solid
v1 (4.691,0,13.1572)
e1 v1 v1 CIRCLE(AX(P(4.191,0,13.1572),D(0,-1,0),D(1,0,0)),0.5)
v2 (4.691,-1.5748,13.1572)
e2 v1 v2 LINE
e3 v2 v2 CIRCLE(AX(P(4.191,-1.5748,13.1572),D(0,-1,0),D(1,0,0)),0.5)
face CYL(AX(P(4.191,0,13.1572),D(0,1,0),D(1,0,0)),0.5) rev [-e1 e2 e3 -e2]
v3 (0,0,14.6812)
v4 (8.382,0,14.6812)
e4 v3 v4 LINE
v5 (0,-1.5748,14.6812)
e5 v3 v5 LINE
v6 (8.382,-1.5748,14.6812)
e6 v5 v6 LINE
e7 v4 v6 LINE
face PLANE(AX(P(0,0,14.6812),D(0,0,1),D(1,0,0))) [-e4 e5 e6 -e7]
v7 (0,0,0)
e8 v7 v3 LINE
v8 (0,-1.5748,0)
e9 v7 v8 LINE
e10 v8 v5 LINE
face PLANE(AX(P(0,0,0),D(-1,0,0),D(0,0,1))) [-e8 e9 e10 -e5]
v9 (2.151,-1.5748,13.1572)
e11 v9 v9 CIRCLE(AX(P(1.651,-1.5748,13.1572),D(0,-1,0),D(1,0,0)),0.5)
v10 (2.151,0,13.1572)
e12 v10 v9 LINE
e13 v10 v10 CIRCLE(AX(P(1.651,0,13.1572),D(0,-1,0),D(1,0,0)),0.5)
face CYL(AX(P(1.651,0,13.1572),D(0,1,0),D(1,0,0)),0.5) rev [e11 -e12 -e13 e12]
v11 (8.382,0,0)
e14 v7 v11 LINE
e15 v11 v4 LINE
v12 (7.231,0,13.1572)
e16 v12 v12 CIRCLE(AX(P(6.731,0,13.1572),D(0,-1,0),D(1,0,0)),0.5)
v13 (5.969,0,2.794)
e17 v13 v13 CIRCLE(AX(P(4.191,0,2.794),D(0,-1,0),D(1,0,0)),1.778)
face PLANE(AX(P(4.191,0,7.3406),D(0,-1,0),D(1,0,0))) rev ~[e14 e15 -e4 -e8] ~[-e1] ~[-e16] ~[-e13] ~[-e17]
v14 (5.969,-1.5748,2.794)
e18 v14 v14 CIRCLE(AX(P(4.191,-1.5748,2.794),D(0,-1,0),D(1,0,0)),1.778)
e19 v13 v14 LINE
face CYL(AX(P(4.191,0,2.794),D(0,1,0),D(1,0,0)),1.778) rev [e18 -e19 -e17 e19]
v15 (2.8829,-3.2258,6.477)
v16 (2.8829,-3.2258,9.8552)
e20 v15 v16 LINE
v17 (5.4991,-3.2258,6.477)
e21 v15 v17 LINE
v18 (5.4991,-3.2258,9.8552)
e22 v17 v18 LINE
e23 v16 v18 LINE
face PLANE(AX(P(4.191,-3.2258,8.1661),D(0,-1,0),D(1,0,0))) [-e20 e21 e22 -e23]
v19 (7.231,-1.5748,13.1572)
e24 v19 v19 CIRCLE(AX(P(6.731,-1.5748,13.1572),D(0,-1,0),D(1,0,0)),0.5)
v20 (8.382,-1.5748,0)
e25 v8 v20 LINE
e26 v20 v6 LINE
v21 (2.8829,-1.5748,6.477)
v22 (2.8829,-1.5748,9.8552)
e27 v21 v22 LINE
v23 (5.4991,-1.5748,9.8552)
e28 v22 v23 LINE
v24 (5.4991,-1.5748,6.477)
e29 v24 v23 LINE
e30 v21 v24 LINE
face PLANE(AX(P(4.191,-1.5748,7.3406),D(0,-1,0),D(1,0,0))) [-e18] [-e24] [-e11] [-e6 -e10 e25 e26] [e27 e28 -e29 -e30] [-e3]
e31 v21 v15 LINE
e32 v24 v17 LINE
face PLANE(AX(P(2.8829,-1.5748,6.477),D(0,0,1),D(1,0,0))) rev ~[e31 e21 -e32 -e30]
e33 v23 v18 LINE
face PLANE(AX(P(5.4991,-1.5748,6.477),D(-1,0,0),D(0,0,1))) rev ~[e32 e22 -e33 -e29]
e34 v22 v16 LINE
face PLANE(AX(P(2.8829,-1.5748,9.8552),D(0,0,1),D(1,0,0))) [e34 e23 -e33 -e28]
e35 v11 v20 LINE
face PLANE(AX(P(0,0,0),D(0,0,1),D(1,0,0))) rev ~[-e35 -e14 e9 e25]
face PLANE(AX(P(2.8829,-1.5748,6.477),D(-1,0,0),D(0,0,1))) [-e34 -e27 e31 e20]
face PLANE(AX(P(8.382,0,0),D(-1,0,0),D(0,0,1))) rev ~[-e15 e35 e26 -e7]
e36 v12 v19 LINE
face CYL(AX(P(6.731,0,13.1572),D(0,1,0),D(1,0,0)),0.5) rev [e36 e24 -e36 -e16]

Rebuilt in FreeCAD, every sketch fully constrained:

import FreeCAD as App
import Part
import Sketcher

V = App.Vector
Q = App.Units.Quantity


def add_polygon(sketch, points):
    """Adds a closed chain of lines whose ends are joined by coincident constraints."""
    first, n = sketch.GeometryCount, len(points)
    for a, b in zip(points, points[1:] + points[:1]):
        sketch.addGeometry(Part.LineSegment(App.Vector(*a, 0), App.Vector(*b, 0)), False)
    for i in range(n):
        sketch.addConstraint(Sketcher.Constraint("Coincident", first + i, 2, first + (i + 1) % n, 1))

doc = App.newDocument("Part")
body = doc.addObject("PartDesign::Body", "Body")

# Sketch on XZ plane
sketch1 = doc.addObject("Sketcher::SketchObject", "Sketch")
body.addObject(sketch1)
sketch1.AttachmentSupport = (doc.XZ_Plane, [""])
sketch1.MapMode = "FlatFace"
add_polygon(sketch1, [(0, 14.7), (0, 0), (8.4, 0), (8.4, 14.7)])  # lines 0-3
sketch1.addGeometry(Part.Circle(V(4.2, 2.8, 0), V(0, 0, 1), 1.8), False)  # 4
sketch1.addGeometry(Part.Circle(V(1.7, 13.2, 0), V(0, 0, 1), 0.5), False)  # 5
sketch1.addGeometry(Part.Circle(V(4.2, 13.2, 0), V(0, 0, 1), 0.5), False)  # 6
sketch1.addGeometry(Part.Circle(V(6.7, 13.2, 0), V(0, 0, 1), 0.5), False)  # 7
sketch1.addConstraint(Sketcher.Constraint("Vertical", 0))
sketch1.addConstraint(Sketcher.Constraint("Horizontal", 1))
sketch1.addConstraint(Sketcher.Constraint("Vertical", 2))
sketch1.addConstraint(Sketcher.Constraint("Horizontal", 3))
sketch1.addConstraint(Sketcher.Constraint("Coincident", 0, 2, -1, 1))
sketch1.addConstraint(Sketcher.Constraint("Equal", 5, 6))
sketch1.addConstraint(Sketcher.Constraint("Equal", 6, 7))
sketch1.addConstraint(Sketcher.Constraint("Horizontal", 5, 3, 6, 3))
sketch1.addConstraint(Sketcher.Constraint("Horizontal", 6, 3, 7, 3))
sketch1.addConstraint(Sketcher.Constraint("Vertical", 4, 3, 6, 3))
sketch1.addConstraint(Sketcher.Constraint("Diameter", 4, Q("0.14 in")))
sketch1.addConstraint(Sketcher.Constraint("DistanceX", 1, 1, 1, 2, Q("0.33 in")))
sketch1.addConstraint(Sketcher.Constraint("DistanceX", 5, 3, 4, 3, Q("0.1 in")))
sketch1.addConstraint(Sketcher.Constraint("DistanceX", 6, 3, 7, 3, Q("0.1 in")))
sketch1.addConstraint(Sketcher.Constraint("Diameter", 5, 1.0))
sketch1.addConstraint(Sketcher.Constraint("DistanceY", 0, 2, 0, 1, Q("0.578 in")))
sketch1.addConstraint(Sketcher.Constraint("DistanceY", -1, 1, 4, 3, Q("0.11 in")))
sketch1.addConstraint(Sketcher.Constraint("DistanceY", 7, 3, 2, 2, Q("0.06 in")))
sketch1.addConstraint(Sketcher.Constraint("DistanceX", -1, 1, 4, 3, Q("0.165 in")))
pad1 = doc.addObject("PartDesign::Pad", "Pad")
body.addObject(pad1)
pad1.Profile = sketch1
pad1.Length = Q("0.062 in")

# Sketch on XZ plane
sketch2 = doc.addObject("Sketcher::SketchObject", "Sketch001")
body.addObject(sketch2)
sketch2.AttachmentSupport = (doc.XZ_Plane, [""])
sketch2.MapMode = "FlatFace"
sketch2.AttachmentOffset = App.Placement(V(0, 0, 0.062 * 25.4), App.Rotation())
add_polygon(sketch2, [(2.9, 9.9), (2.9, 6.5), (5.5, 6.5), (5.5, 9.9)])  # lines 0-3
sketch2.addConstraint(Sketcher.Constraint("Vertical", 0))
sketch2.addConstraint(Sketcher.Constraint("Horizontal", 1))
sketch2.addConstraint(Sketcher.Constraint("Vertical", 2))
sketch2.addConstraint(Sketcher.Constraint("Horizontal", 3))
sketch2.addConstraint(Sketcher.Constraint("DistanceX", 1, 1, 1, 2, Q("0.103 in")))
sketch2.addConstraint(Sketcher.Constraint("DistanceY", 0, 2, 0, 1, Q("0.133 in")))
sketch2.addConstraint(Sketcher.Constraint("DistanceY", -1, 1, 0, 2, Q("0.255 in")))
sketch2.addConstraint(Sketcher.Constraint("DistanceX", -1, 1, 0, 2, Q("0.1135 in")))
pad2 = doc.addObject("PartDesign::Pad", "Pad001")
body.addObject(pad2)
pad2.Profile = sketch2
pad2.Length = Q("0.065 in")

doc.recompute()
